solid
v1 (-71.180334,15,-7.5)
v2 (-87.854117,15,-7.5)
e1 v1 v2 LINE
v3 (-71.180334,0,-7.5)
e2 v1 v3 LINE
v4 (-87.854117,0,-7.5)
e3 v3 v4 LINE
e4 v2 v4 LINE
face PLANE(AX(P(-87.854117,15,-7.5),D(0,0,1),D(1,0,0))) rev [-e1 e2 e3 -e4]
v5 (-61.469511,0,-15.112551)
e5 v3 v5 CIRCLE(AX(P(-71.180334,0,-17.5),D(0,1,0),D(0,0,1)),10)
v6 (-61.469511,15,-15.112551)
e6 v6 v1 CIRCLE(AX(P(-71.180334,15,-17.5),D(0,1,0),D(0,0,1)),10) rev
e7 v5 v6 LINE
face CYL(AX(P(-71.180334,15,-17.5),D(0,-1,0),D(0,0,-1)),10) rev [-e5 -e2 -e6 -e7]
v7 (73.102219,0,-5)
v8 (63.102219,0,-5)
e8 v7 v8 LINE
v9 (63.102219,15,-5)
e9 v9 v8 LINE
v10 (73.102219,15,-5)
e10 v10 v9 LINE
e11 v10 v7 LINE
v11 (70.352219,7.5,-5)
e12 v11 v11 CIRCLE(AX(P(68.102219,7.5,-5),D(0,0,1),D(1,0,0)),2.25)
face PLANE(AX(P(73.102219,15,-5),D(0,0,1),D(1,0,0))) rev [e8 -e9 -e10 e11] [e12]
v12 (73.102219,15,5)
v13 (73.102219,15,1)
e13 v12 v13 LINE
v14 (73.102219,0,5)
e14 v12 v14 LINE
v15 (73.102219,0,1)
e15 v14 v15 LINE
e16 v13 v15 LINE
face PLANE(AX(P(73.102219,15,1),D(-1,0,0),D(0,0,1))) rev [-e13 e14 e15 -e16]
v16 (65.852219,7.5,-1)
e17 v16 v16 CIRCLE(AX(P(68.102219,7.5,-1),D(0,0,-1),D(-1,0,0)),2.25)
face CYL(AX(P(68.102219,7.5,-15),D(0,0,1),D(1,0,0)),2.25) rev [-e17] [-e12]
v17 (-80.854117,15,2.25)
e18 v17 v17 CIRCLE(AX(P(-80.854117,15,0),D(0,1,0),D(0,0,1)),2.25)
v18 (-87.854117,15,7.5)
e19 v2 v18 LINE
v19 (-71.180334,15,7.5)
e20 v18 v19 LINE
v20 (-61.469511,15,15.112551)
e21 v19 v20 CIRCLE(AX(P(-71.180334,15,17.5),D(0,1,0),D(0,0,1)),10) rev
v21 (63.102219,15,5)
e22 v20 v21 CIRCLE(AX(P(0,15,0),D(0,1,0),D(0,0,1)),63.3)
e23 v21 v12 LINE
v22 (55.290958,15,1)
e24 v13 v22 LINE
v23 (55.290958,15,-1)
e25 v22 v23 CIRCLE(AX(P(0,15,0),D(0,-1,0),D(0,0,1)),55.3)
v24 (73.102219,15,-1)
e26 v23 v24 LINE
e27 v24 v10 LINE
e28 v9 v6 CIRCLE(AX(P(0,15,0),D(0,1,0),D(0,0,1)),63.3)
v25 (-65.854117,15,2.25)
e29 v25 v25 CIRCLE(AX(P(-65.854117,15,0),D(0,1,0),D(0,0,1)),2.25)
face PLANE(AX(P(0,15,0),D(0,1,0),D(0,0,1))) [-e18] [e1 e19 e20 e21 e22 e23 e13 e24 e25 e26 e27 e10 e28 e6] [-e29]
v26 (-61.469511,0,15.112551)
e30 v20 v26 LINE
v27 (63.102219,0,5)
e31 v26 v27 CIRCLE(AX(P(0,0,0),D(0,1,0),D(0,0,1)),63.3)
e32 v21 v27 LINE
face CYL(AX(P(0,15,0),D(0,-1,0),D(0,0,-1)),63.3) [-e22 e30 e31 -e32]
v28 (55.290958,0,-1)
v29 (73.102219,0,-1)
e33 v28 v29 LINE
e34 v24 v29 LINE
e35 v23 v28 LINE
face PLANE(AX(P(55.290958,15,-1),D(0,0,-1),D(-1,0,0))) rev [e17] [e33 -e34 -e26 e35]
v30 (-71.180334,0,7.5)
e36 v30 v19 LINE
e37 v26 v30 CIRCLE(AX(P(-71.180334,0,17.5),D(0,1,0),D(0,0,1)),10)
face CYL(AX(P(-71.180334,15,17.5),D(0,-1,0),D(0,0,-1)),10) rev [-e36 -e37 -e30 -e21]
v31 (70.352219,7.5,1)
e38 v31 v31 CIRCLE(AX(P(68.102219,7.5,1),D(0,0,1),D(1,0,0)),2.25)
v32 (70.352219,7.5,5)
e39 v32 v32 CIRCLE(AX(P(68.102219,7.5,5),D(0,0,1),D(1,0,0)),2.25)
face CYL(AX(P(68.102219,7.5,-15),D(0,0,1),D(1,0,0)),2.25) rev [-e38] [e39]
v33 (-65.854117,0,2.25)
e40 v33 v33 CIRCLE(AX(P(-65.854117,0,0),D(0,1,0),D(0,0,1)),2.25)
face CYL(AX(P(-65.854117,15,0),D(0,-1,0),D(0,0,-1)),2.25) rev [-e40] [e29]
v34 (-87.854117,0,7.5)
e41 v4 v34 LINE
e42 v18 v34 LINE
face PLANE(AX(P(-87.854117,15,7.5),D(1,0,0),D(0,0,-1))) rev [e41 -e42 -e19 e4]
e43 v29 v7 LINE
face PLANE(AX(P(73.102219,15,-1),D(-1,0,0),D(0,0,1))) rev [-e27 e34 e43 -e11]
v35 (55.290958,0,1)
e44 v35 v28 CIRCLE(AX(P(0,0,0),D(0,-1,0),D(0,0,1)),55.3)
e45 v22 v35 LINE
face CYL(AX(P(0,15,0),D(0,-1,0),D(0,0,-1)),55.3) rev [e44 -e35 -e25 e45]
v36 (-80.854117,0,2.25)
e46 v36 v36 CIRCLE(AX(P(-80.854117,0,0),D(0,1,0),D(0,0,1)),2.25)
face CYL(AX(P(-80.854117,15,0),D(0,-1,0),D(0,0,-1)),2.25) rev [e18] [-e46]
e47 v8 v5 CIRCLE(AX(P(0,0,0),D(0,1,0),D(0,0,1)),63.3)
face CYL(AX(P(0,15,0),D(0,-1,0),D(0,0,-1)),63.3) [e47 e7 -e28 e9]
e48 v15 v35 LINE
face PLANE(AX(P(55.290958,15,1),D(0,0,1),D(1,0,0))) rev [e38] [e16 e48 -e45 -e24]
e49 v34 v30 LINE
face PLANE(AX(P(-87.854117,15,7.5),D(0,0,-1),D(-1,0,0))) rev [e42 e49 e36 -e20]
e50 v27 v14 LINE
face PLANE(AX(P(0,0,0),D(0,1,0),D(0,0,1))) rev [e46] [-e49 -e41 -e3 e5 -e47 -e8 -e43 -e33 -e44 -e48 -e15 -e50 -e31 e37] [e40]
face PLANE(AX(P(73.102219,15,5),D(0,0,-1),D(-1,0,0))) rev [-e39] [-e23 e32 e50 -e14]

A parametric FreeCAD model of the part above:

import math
import FreeCAD as App
import Part
import Sketcher


def edges_at(feature, points):
    """Names of the edges that pass closest to the given points."""
    edges = feature.Shape.Edges
    near = lambda p: min(range(len(edges)), key=lambda i: edges[i].distToShape(Part.Vertex(*p))[0])
    return sorted({f"Edge{near(p) + 1}" for p in points})

doc = App.newDocument("Part")
params = doc.addObject("Spreadsheet::Sheet", "Params")
for row, (alias, value) in enumerate([
    ("sketch1_diameter", "4.5 mm"),
    ("sketch1_radius", "63.3 mm"),
    ("sketch1_radius2", "55.3 mm"),
    ("sketch1_width", "25 mm"),
    ("sketch1_width2", "10 mm"),
    ("pad1_length", "15 mm"),
    ("sketch2_diameter", "4.5 mm"),
    ("pocket1_length", "20 mm"),
    ("fillet_radius", "10 mm"),
], start=1):
    params.set(f"A{row}", alias)
    params.set(f"B{row}", "=" + value)
    params.setAlias(f"B{row}", alias)

body = doc.addObject("PartDesign::Body", "Body")

# Sketch on XZ plane
sketch1 = body.newObject("Sketcher::SketchObject", "Sketch")
sketch1.AttachmentSupport = (doc.getObject("XZ_Plane"), [""])
sketch1.MapMode = "FlatFace"
sketch1.addGeometry(Part.LineSegment(App.Vector(-87.854117, 7.5, 0), App.Vector(-62.854117, 7.5, 0)), False)
sketch1.addGeometry(Part.ArcOfCircle(Part.Circle(App.Vector(0, 0, 0), App.Vector(0, 0, 1), 63.3), math.radians(4.530452), math.radians(173.195416)), False)
sketch1.addGeometry(Part.LineSegment(App.Vector(63.102219, 5, 0), App.Vector(73.102219, 5, 0)), False)
sketch1.addGeometry(Part.LineSegment(App.Vector(73.102219, 5, 0), App.Vector(73.102219, 1, 0)), False)
sketch1.addGeometry(Part.LineSegment(App.Vector(73.102219, 1, 0), App.Vector(55.290958, 1, 0)), False)
sketch1.addGeometry(Part.ArcOfCircle(Part.Circle(App.Vector(0, 0, 0), App.Vector(0, 0, 1), 55.3), math.radians(1.036147), math.radians(358.963853)), False)
sketch1.addGeometry(Part.LineSegment(App.Vector(55.290958, -1, 0), App.Vector(73.102219, -1, 0)), False)
sketch1.addGeometry(Part.LineSegment(App.Vector(73.102219, -1, 0), App.Vector(73.102219, -5, 0)), False)
sketch1.addGeometry(Part.LineSegment(App.Vector(73.102219, -5, 0), App.Vector(63.102219, -5, 0)), False)
sketch1.addGeometry(Part.ArcOfCircle(Part.Circle(App.Vector(0, 0, 0), App.Vector(0, 0, 1), 63.3), math.radians(-173.195416), math.radians(-4.530452)), False)
sketch1.addGeometry(Part.LineSegment(App.Vector(-62.854117, -7.5, 0), App.Vector(-87.854117, -7.5, 0)), False)
sketch1.addGeometry(Part.LineSegment(App.Vector(-87.854117, -7.5, 0), App.Vector(-87.854117, 7.5, 0)), False)
sketch1.addGeometry(Part.Circle(App.Vector(-80.854117, 0, 0), App.Vector(0, 0, 1), 2.25), False)
sketch1.addGeometry(Part.Circle(App.Vector(-65.854117, 0, 0), App.Vector(0, 0, 1), 2.25), False)
sketch1.addConstraint(Sketcher.Constraint("Coincident", 0, 2, 1, 2))
sketch1.addConstraint(Sketcher.Constraint("Coincident", 1, 1, 2, 1))
sketch1.addConstraint(Sketcher.Constraint("Coincident", 2, 2, 3, 1))
sketch1.addConstraint(Sketcher.Constraint("Coincident", 3, 2, 4, 1))
sketch1.addConstraint(Sketcher.Constraint("Coincident", 4, 2, 5, 1))
sketch1.addConstraint(Sketcher.Constraint("Coincident", 5, 2, 6, 1))
sketch1.addConstraint(Sketcher.Constraint("Coincident", 6, 2, 7, 1))
sketch1.addConstraint(Sketcher.Constraint("Coincident", 7, 2, 8, 1))
sketch1.addConstraint(Sketcher.Constraint("Coincident", 8, 2, 9, 2))
sketch1.addConstraint(Sketcher.Constraint("Coincident", 9, 1, 10, 1))
sketch1.addConstraint(Sketcher.Constraint("Coincident", 10, 2, 11, 1))
sketch1.addConstraint(Sketcher.Constraint("Coincident", 11, 2, 0, 1))
sketch1.addConstraint(Sketcher.Constraint("Horizontal", 0))
sketch1.addConstraint(Sketcher.Constraint("Horizontal", 2))
sketch1.addConstraint(Sketcher.Constraint("Vertical", 3))
sketch1.addConstraint(Sketcher.Constraint("Horizontal", 4))
sketch1.addConstraint(Sketcher.Constraint("Horizontal", 6))
sketch1.addConstraint(Sketcher.Constraint("Vertical", 7))
sketch1.addConstraint(Sketcher.Constraint("Horizontal", 8))
sketch1.addConstraint(Sketcher.Constraint("Horizontal", 10))
sketch1.addConstraint(Sketcher.Constraint("Vertical", 11))
sketch1.addConstraint(Sketcher.Constraint("Coincident", 1, 3, -1, 1))
sketch1.addConstraint(Sketcher.Constraint("Coincident", 5, 3, -1, 1))
sketch1.addConstraint(Sketcher.Constraint("Coincident", 9, 3, -1, 1))
sketch1.addConstraint(Sketcher.Constraint("Equal", 1, 9))
sketch1.addConstraint(Sketcher.Constraint("Equal", 12, 13))
sketch1.addConstraint(Sketcher.Constraint("Symmetric", 3, 2, 6, 2, -1))
sketch1.addConstraint(Sketcher.Constraint("PointOnObject", 12, 3, -1))
sketch1.addConstraint(Sketcher.Constraint("PointOnObject", 13, 3, -1))
sketch1.addConstraint(Sketcher.Constraint("Vertical", 1, 1, 8, 2))
sketch1.addConstraint(Sketcher.Constraint("Vertical", 0, 2, 9, 1))
sketch1.addConstraint(Sketcher.Constraint("Diameter", 12, 4.5))
sketch1.addConstraint(Sketcher.Constraint("Radius", 1, 63.3))
sketch1.addConstraint(Sketcher.Constraint("Radius", 5, 55.3))
sketch1.addConstraint(Sketcher.Constraint("DistanceX", 0, 1, 0, 2, 25.0))
sketch1.addConstraint(Sketcher.Constraint("DistanceX", 2, 1, 2, 2, 10.0))
sketch1.addConstraint(Sketcher.Constraint("DistanceY", 3, 2, 3, 1, 4.0))
sketch1.addConstraint(Sketcher.Constraint("DistanceY", 11, 1, 11, 2, 15.0))
sketch1.addConstraint(Sketcher.Constraint("DistanceY", -1, 1, 1, 1, 5.0))
sketch1.addConstraint(Sketcher.Constraint("DistanceX", 12, 3, 13, 3, 15.0))
sketch1.addConstraint(Sketcher.Constraint("DistanceX", 13, 3, 0, 2, 3.0))
sketch1.setExpression("Constraints[31]", "Params.sketch1_diameter")
sketch1.setExpression("Constraints[32]", "Params.sketch1_radius")
sketch1.setExpression("Constraints[33]", "Params.sketch1_radius2")
sketch1.setExpression("Constraints[34]", "Params.sketch1_width")
sketch1.setExpression("Constraints[35]", "Params.sketch1_width2")
pad1 = body.newObject("PartDesign::Pad", "Pad")
pad1.Profile = sketch1
pad1.setExpression("Length", "Params.pad1_length")
pad1.Reversed = True

# Sketch on XY plane
sketch2 = body.newObject("Sketcher::SketchObject", "Sketch001")
sketch2.AttachmentSupport = (doc.getObject("XY_Plane"), [""])
sketch2.MapMode = "FlatFace"
sketch2.AttachmentOffset = App.Placement(App.Vector(0, 0, 5), App.Rotation())
sketch2.addGeometry(Part.Circle(App.Vector(68.102219, 7.5, 0), App.Vector(0, 0, 1), 2.25), False)
sketch2.addConstraint(Sketcher.Constraint("Diameter", 0, 4.5))
sketch2.addConstraint(Sketcher.Constraint("DistanceY", -1, 1, 0, 3, 7.5))
sketch2.addConstraint(Sketcher.Constraint("DistanceX", -1, 1, 0, 3, 68.102219))
sketch2.setExpression("Constraints[0]", "Params.sketch2_diameter")
pocket1 = body.newObject("PartDesign::Pocket", "Pocket")
pocket1.Profile = sketch2
pocket1.setExpression("Length", "Params.pocket1_length")
doc.recompute()

fillet = body.newObject("PartDesign::Fillet", "Fillet")
fillet.Base = (pocket1, edges_at(pocket1, [(-62.854, 7.5, 7.5), (-62.854, 7.5, -7.5)]))
fillet.setExpression("Radius", "Params.fillet_radius")

doc.recompute()
